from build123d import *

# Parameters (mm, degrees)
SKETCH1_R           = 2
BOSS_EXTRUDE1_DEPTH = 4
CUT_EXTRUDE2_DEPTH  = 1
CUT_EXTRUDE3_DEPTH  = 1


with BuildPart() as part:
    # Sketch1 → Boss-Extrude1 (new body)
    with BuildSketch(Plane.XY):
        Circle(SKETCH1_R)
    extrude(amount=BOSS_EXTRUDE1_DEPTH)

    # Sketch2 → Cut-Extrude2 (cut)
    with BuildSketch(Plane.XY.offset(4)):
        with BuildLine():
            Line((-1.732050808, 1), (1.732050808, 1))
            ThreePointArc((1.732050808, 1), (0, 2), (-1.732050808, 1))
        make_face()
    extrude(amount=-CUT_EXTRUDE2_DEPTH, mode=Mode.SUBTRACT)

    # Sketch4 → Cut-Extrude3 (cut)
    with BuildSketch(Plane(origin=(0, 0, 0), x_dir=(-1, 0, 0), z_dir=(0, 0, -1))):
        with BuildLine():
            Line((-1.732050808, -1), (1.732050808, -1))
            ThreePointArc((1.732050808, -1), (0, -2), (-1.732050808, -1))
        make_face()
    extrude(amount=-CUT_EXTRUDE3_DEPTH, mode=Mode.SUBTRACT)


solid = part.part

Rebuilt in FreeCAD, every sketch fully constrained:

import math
import FreeCAD as App
import Part
import Sketcher
from FreeCAD import Vector
Q = App.Units.Quantity

doc = App.newDocument("Part")
body = doc.addObject("PartDesign::Body", "Body")

sketch1 = body.newObject("Sketcher::SketchObject", "Sketch")
sketch1.AttachmentSupport = (doc.getObject("XY_Plane"), [""])
sketch1.MapMode = "FlatFace"
sketch1.addGeometry(Part.Circle(Vector(0, 0, 0), Vector(0, 0, 1), 2), False)
sketch1.addConstraint(Sketcher.Constraint("Coincident", 0, 3, -1, 1))
sketch1.addConstraint(Sketcher.Constraint("Diameter", 0, Q("4 mm")))
pad1 = body.newObject("PartDesign::Pad", "Pad")
pad1.Profile = sketch1
pad1.Length = 4

sketch2 = body.newObject("Sketcher::SketchObject", "Sketch001")
sketch2.AttachmentSupport = (doc.getObject("XY_Plane"), [""])
sketch2.MapMode = "FlatFace"
sketch2.AttachmentOffset = App.Placement(Vector(0, 0, 4), App.Rotation())
sketch2.addGeometry(Part.LineSegment(Vector(-1.7, 1, 0), Vector(1.7, 1, 0)), False)
sketch2.addGeometry(Part.ArcOfCircle(Part.Circle(Vector(0, 0, 0), Vector(0, 0, 1), 2), math.radians(30), math.radians(150)), False)
sketch2.addConstraint(Sketcher.Constraint("Coincident", 0, 1, 1, 2))
sketch2.addConstraint(Sketcher.Constraint("Coincident", 1, 1, 0, 2))
sketch2.addConstraint(Sketcher.Constraint("Horizontal", 0))
sketch2.addConstraint(Sketcher.Constraint("Coincident", 1, 3, -1, 1))
sketch2.addConstraint(Sketcher.Constraint("Radius", 1, Q("2 mm")))
sketch2.addConstraint(Sketcher.Constraint("DistanceY", -1, 1, 0, 1, Q("1 mm")))
pocket1 = body.newObject("PartDesign::Pocket", "Pocket")
pocket1.Profile = sketch2
pocket1.Length = 1

sketch3 = body.newObject("Sketcher::SketchObject", "Sketch002")
sketch3.AttachmentSupport = (doc.getObject("XY_Plane"), [""])
sketch3.MapMode = "FlatFace"
sketch3.addGeometry(Part.LineSegment(Vector(-1.7, -1, 0), Vector(1.7, -1, 0)), False)
sketch3.addGeometry(Part.ArcOfCircle(Part.Circle(Vector(0, 0, 0), Vector(0, 0, 1), 2), math.radians(-150), math.radians(-30)), False)
sketch3.addConstraint(Sketcher.Constraint("Coincident", 0, 1, 1, 1))
sketch3.addConstraint(Sketcher.Constraint("Coincident", 1, 2, 0, 2))
sketch3.addConstraint(Sketcher.Constraint("Horizontal", 0))
sketch3.addConstraint(Sketcher.Constraint("Coincident", 1, 3, -1, 1))
sketch3.addConstraint(Sketcher.Constraint("Radius", 1, Q("2 mm")))
sketch3.addConstraint(Sketcher.Constraint("DistanceY", 0, 1, -1, 1, Q("1 mm")))
pocket2 = body.newObject("PartDesign::Pocket", "Pocket001")
pocket2.Profile = sketch3
pocket2.Length = 1
pocket2.Reversed = True

doc.recompute()
